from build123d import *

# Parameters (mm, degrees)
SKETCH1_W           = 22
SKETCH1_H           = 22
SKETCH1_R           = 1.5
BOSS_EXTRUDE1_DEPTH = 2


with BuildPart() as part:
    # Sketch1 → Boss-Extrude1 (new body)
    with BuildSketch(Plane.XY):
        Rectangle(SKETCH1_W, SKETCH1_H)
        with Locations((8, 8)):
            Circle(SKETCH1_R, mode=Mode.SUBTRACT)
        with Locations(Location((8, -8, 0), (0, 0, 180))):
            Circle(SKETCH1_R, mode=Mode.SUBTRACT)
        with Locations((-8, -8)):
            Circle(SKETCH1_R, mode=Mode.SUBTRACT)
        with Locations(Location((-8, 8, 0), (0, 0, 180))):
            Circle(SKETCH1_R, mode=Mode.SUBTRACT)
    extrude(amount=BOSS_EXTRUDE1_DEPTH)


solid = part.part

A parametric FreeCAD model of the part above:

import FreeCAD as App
import Part
import Sketcher

V = App.Vector

doc = App.newDocument("Part")
body = doc.addObject("PartDesign::Body", "Body")

# Sketch on XY plane
sketch1 = body.newObject("Sketcher::SketchObject", "Sketch")
sketch1.AttachmentSupport = (doc.getObject("XY_Plane"), [""])
sketch1.MapMode = "FlatFace"
sketch1.addGeometry([
    Part.LineSegment(V(-11, 11, 0), V(-11, -11, 0)),  # 0
    Part.LineSegment(V(-11, -11, 0), V(11, -11, 0)),  # 1
    Part.LineSegment(V(11, -11, 0), V(11, 11, 0)),  # 2
    Part.LineSegment(V(11, 11, 0), V(-11, 11, 0)),  # 3
    Part.Circle(V(-8, -8, 0), V(0, 0, 1), 1.5),  # 4
    Part.Circle(V(8, -8, 0), V(0, 0, 1), 1.5),  # 5
    Part.Circle(V(-8, 8, 0), V(0, 0, 1), 1.5),  # 6
    Part.Circle(V(8, 8, 0), V(0, 0, 1), 1.5),  # 7
], False)
sketch1.addConstraint([
    Sketcher.Constraint("Coincident", 0, 2, 1, 1),
    Sketcher.Constraint("Coincident", 1, 2, 2, 1),
    Sketcher.Constraint("Coincident", 2, 2, 3, 1),
    Sketcher.Constraint("Coincident", 3, 2, 0, 1),
    Sketcher.Constraint("Vertical", 0),
    Sketcher.Constraint("Horizontal", 1),
    Sketcher.Constraint("Vertical", 2),
    Sketcher.Constraint("Horizontal", 3),
    Sketcher.Constraint("Equal", 4, 5),
    Sketcher.Constraint("Equal", 5, 6),
    Sketcher.Constraint("Equal", 6, 7),
    Sketcher.Constraint("Symmetric", 5, 3, 6, 3, -1, 1),
    Sketcher.Constraint("Symmetric", 4, 3, 7, 3, -1, 1),
    Sketcher.Constraint("Symmetric", 0, 2, 2, 2, -1, 1),
    Sketcher.Constraint("Symmetric", 4, 3, 5, 3, -2),
    Sketcher.Constraint("Equal", 3, 0),
    Sketcher.Constraint("Diameter", 4, 3.0),
    Sketcher.Constraint("DistanceX", 1, 1, 1, 2, 22.0),
    Sketcher.Constraint("DistanceX", 4, 3, -1, 1, 8.0),
    Sketcher.Constraint("DistanceY", 4, 3, -1, 1, 8.0),
])
pad1 = body.newObject("PartDesign::Pad", "Pad")
pad1.Profile = sketch1
pad1.Length = 2

doc.recompute()
